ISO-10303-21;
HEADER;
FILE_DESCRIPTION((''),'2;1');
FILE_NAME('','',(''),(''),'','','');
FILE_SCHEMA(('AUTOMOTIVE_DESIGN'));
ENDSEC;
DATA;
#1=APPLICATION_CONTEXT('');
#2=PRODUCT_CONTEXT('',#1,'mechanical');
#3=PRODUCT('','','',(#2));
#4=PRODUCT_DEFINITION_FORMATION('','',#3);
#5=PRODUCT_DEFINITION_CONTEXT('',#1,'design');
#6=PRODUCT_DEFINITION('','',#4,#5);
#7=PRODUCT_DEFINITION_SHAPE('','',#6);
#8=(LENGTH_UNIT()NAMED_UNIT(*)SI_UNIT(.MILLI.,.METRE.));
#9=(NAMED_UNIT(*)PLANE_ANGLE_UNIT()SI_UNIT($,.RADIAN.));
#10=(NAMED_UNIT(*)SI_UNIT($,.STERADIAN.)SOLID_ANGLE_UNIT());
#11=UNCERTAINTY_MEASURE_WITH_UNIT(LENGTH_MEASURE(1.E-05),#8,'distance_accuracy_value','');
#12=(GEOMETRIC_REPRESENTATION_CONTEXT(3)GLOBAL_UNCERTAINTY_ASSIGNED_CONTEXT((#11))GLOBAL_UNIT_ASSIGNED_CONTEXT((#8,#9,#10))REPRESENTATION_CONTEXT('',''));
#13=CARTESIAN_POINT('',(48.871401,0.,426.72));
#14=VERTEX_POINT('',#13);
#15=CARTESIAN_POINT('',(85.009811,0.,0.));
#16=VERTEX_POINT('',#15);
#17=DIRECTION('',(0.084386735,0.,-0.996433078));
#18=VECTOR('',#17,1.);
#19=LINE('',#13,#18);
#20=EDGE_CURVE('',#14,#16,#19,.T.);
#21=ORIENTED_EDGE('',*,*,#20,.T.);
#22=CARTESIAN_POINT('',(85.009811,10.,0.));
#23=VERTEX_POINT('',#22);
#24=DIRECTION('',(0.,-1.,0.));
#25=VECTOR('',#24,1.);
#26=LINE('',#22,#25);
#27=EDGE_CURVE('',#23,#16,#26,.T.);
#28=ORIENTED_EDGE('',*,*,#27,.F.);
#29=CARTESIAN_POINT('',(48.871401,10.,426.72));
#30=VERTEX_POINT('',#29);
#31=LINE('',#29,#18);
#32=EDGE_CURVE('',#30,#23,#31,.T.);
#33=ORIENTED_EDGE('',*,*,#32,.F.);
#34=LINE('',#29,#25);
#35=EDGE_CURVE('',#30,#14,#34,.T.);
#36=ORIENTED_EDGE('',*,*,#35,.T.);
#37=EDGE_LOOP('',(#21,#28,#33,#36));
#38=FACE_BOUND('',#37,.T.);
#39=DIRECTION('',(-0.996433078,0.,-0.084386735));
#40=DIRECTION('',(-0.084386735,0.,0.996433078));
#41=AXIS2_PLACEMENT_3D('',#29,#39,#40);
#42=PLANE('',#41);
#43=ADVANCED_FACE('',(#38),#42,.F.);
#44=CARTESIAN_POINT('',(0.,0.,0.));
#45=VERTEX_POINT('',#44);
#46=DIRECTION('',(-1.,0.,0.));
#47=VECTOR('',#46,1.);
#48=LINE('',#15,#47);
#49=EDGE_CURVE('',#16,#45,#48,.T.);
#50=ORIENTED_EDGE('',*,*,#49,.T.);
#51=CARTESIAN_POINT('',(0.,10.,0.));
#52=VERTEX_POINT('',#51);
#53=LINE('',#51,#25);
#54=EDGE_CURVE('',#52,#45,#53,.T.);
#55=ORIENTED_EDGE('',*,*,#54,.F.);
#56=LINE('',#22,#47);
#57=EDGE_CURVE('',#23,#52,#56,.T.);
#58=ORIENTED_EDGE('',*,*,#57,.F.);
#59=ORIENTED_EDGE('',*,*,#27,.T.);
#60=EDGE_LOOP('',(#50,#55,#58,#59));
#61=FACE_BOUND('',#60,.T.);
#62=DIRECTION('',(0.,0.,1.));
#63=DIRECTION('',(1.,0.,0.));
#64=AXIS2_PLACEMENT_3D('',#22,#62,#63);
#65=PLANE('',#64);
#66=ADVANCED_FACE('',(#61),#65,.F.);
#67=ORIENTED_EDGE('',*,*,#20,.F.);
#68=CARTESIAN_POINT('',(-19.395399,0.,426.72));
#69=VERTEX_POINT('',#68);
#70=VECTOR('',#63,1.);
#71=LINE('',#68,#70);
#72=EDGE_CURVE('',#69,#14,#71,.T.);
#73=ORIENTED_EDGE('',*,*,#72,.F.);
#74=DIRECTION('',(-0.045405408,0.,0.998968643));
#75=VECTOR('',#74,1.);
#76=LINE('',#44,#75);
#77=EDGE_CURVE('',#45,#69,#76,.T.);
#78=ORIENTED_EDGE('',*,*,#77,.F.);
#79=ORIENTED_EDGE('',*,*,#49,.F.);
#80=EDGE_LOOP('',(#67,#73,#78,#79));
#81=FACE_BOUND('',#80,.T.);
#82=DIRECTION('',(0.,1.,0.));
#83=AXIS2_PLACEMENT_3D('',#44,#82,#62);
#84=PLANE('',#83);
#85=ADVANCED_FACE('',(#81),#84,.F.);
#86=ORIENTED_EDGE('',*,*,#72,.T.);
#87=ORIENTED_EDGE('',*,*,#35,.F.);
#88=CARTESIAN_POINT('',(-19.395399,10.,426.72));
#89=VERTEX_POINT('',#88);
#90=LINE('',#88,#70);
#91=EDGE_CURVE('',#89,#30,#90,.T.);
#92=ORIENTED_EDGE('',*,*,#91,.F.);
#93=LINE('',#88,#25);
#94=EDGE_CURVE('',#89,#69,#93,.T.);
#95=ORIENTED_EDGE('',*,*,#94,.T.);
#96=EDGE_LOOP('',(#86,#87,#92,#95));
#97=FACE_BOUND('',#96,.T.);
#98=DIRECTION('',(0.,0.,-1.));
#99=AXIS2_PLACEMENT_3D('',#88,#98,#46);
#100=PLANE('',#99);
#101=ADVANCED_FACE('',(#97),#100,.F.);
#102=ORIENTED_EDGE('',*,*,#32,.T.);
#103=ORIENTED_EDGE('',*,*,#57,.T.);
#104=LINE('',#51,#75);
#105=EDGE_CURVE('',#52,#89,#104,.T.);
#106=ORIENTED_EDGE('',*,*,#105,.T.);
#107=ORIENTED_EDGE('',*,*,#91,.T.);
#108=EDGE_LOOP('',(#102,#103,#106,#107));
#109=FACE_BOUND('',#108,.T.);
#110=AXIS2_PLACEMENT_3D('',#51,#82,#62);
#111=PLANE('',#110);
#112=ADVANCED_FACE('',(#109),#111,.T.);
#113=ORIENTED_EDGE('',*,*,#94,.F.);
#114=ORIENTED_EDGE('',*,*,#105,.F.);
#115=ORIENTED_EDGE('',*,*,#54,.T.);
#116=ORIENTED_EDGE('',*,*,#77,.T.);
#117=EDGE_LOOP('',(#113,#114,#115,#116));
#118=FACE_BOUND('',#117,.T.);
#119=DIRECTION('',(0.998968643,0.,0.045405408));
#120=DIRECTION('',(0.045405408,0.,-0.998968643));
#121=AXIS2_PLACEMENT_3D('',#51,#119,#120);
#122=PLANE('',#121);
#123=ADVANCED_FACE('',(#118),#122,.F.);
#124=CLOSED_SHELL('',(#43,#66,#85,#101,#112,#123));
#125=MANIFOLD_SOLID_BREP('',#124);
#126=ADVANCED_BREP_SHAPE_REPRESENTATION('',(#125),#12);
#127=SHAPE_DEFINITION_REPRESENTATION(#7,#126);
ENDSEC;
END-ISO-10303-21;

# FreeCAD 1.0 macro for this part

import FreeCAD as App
import Part
import Sketcher
from FreeCAD import Vector
Q = App.Units.Quantity


def add_polygon(sketch, points):
    """Adds a closed chain of lines whose ends are joined by coincident constraints."""
    first, n = sketch.GeometryCount, len(points)
    for a, b in zip(points, points[1:] + points[:1]):
        sketch.addGeometry(Part.LineSegment(App.Vector(*a, 0), App.Vector(*b, 0)), False)
    for i in range(n):
        sketch.addConstraint(Sketcher.Constraint("Coincident", first + i, 2, first + (i + 1) % n, 1))

doc = App.newDocument("Part")
body = doc.addObject("PartDesign::Body", "Body")

# Sketch on XZ plane
sketch1 = body.newObject("Sketcher::SketchObject", "Sketch")
sketch1.AttachmentSupport = (doc.getObject("XZ_Plane"), [""])
sketch1.MapMode = "FlatFace"
add_polygon(sketch1, [(-19, 427), (49, 427), (85, 0), (0, 0)])  # lines 0-3
sketch1.addConstraint(Sketcher.Constraint("Horizontal", 0))
sketch1.addConstraint(Sketcher.Constraint("Horizontal", 2))
sketch1.addConstraint(Sketcher.Constraint("Coincident", 2, 2, -1, 1))
sketch1.addConstraint(Sketcher.Constraint("DistanceY", -1, 1, 0, 2, Q("426.72 mm")))
sketch1.addConstraint(Sketcher.Constraint("DistanceX", 0, 1, 0, 2, Q("68.2668 mm")))
sketch1.addConstraint(Sketcher.Constraint("DistanceX", 2, 2, 2, 1, Q("85.009811 mm")))
sketch1.addConstraint(Sketcher.Constraint("DistanceX", -1, 1, 0, 2, Q("48.871401 mm")))
pad1 = body.newObject("PartDesign::Pad", "Pad")
pad1.Profile = sketch1
pad1.Length = 10
pad1.Reversed = True

doc.recompute()
